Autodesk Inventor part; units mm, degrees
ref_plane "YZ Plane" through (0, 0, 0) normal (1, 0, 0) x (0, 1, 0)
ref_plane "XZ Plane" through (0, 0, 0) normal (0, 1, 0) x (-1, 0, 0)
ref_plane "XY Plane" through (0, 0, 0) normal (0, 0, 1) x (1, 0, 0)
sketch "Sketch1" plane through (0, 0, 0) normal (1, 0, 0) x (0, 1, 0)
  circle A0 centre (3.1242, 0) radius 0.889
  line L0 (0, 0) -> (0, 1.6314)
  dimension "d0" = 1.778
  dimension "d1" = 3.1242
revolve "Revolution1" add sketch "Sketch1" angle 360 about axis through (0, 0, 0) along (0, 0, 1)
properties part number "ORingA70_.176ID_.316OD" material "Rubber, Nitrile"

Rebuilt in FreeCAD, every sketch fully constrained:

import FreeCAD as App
import Part
import Sketcher
Q = App.Units.Quantity

doc = App.newDocument("Part")
params = doc.addObject("Spreadsheet::Sheet", "Params")
for row, (alias, value) in enumerate([
    ("sketch1_diameter", "0.07 in"),
    ("revolution_angle", "360 deg"),
], start=1):
    params.set(f"A{row}", alias)
    params.set(f"B{row}", "=" + value)
    params.setAlias(f"B{row}", alias)

body = doc.addObject("PartDesign::Body", "Body")

# Sketch on YZ plane
sketch1 = body.newObject("Sketcher::SketchObject", "Sketch")
sketch1.AttachmentSupport = (doc.getObject("YZ_Plane"), [""])
sketch1.MapMode = "FlatFace"
sketch1.addGeometry(Part.Circle(App.Vector(3.1242, 0, 0), App.Vector(0, 0, 1), 0.889), False)
sketch1.addConstraint([
    Sketcher.Constraint("PointOnObject", 0, 3, -1),
    Sketcher.Constraint("Diameter", 0, Q("0.07 in")),
    Sketcher.Constraint("DistanceX", -1, 1, 0, 3, Q("0.123 in")),
])
sketch1.setExpression("Constraints[1]", "Params.sketch1_diameter")
revolution = body.newObject("PartDesign::Revolution", "Revolution")
revolution.Profile = sketch1
revolution.ReferenceAxis = (sketch1, ["V_Axis"])
revolution.setExpression("Angle", "Params.revolution_angle")

doc.recompute()
